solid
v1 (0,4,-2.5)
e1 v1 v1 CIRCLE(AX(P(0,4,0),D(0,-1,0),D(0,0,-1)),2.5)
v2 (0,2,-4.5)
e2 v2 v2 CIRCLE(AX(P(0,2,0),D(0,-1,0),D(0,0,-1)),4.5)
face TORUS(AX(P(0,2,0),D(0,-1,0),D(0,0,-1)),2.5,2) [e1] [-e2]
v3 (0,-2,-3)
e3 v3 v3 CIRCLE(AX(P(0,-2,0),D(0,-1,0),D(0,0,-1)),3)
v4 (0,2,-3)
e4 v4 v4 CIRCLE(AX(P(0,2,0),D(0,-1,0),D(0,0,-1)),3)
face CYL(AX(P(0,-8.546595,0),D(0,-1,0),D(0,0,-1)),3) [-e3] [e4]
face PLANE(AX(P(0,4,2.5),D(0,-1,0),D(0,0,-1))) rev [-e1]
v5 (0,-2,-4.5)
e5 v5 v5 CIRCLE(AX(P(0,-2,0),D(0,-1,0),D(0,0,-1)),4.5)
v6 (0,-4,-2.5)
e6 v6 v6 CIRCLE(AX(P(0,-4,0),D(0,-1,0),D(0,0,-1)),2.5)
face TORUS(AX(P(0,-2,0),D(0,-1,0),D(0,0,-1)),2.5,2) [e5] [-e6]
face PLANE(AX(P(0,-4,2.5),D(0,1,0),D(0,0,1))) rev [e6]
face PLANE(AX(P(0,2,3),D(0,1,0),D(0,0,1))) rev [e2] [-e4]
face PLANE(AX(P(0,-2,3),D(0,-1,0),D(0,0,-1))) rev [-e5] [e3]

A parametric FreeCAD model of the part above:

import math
import FreeCAD as App
import Part
import Sketcher

V = App.Vector

doc = App.newDocument("Part")
params = doc.addObject("Spreadsheet::Sheet", "Params")
for row, (alias, value) in enumerate([
    ("sketch1_radius", "2 mm"),
    ("sketch1_width", "4 mm"),
    ("sketch1_height", "1.5 mm"),
    ("sketch1_height2", "2.5 mm"),
    ("revolution_angle", "360 deg"),
], start=1):
    params.set(f"A{row}", alias)
    params.set(f"B{row}", "=" + value)
    params.setAlias(f"B{row}", alias)

body = doc.addObject("PartDesign::Body", "Body")

sketch1 = body.newObject("Sketcher::SketchObject", "Sketch")
sketch1.AttachmentSupport = (doc.getObject("YZ_Plane"), [""])
sketch1.MapMode = "FlatFace"
sketch1.addGeometry([
    Part.LineSegment(V(2, 3, 0), V(-2, 3, 0)),
    Part.LineSegment(V(-2, 3, 0), V(-2, 4.5, 0)),
    Part.ArcOfCircle(Part.Circle(V(-2, 2.5, 0), V(0, 0, 1), 2), math.radians(90), math.radians(180)),
    Part.LineSegment(V(-4, 2.5, 0), V(-4, 0, 0)),
    Part.LineSegment(V(-4, 0, 0), V(4, 0, 0)),
    Part.LineSegment(V(4, 0, 0), V(4, 2.5, 0)),
    Part.ArcOfCircle(Part.Circle(V(2, 2.5, 0), V(0, 0, 1), 2), math.radians(0), math.radians(90)),
    Part.LineSegment(V(2, 4.5, 0), V(2, 3, 0)),
], False)
sketch1.addConstraint([
    Sketcher.Constraint("Coincident", 0, 2, 1, 1),
    Sketcher.Constraint("Coincident", 1, 2, 2, 1),
    Sketcher.Constraint("Tangent", 2, 2, 3, 1),
    Sketcher.Constraint("Coincident", 3, 2, 4, 1),
    Sketcher.Constraint("Coincident", 4, 2, 5, 1),
    Sketcher.Constraint("Tangent", 5, 2, 6, 1),
    Sketcher.Constraint("Coincident", 6, 2, 7, 1),
    Sketcher.Constraint("Coincident", 7, 2, 0, 1),
    Sketcher.Constraint("Horizontal", 0),
    Sketcher.Constraint("Vertical", 1),
    Sketcher.Constraint("Vertical", 3),
    Sketcher.Constraint("Horizontal", 4),
    Sketcher.Constraint("Vertical", 5),
    Sketcher.Constraint("Vertical", 7),
    Sketcher.Constraint("Equal", 2, 6),
    Sketcher.Constraint("Symmetric", 3, 2, 4, 2, -1, 1),
    Sketcher.Constraint("Symmetric", 1, 2, 6, 2, -2),
    Sketcher.Constraint("Vertical", 2, 3, 0, 2),
    Sketcher.Constraint("Radius", 2, 2.0),
    Sketcher.Constraint("DistanceX", 0, 2, 0, 1, 4.0),
    Sketcher.Constraint("DistanceY", 1, 1, 1, 2, 1.5),
    Sketcher.Constraint("DistanceY", 3, 2, 3, 1, 2.5),
])
sketch1.setExpression("Constraints[18]", "Params.sketch1_radius")
sketch1.setExpression("Constraints[19]", "Params.sketch1_width")
sketch1.setExpression("Constraints[20]", "Params.sketch1_height")
sketch1.setExpression("Constraints[21]", "Params.sketch1_height2")
revolution = body.newObject("PartDesign::Revolution", "Revolution")
revolution.Profile = sketch1
revolution.ReferenceAxis = (sketch1, ["H_Axis"])
revolution.setExpression("Angle", "Params.revolution_angle")

doc.recompute()
